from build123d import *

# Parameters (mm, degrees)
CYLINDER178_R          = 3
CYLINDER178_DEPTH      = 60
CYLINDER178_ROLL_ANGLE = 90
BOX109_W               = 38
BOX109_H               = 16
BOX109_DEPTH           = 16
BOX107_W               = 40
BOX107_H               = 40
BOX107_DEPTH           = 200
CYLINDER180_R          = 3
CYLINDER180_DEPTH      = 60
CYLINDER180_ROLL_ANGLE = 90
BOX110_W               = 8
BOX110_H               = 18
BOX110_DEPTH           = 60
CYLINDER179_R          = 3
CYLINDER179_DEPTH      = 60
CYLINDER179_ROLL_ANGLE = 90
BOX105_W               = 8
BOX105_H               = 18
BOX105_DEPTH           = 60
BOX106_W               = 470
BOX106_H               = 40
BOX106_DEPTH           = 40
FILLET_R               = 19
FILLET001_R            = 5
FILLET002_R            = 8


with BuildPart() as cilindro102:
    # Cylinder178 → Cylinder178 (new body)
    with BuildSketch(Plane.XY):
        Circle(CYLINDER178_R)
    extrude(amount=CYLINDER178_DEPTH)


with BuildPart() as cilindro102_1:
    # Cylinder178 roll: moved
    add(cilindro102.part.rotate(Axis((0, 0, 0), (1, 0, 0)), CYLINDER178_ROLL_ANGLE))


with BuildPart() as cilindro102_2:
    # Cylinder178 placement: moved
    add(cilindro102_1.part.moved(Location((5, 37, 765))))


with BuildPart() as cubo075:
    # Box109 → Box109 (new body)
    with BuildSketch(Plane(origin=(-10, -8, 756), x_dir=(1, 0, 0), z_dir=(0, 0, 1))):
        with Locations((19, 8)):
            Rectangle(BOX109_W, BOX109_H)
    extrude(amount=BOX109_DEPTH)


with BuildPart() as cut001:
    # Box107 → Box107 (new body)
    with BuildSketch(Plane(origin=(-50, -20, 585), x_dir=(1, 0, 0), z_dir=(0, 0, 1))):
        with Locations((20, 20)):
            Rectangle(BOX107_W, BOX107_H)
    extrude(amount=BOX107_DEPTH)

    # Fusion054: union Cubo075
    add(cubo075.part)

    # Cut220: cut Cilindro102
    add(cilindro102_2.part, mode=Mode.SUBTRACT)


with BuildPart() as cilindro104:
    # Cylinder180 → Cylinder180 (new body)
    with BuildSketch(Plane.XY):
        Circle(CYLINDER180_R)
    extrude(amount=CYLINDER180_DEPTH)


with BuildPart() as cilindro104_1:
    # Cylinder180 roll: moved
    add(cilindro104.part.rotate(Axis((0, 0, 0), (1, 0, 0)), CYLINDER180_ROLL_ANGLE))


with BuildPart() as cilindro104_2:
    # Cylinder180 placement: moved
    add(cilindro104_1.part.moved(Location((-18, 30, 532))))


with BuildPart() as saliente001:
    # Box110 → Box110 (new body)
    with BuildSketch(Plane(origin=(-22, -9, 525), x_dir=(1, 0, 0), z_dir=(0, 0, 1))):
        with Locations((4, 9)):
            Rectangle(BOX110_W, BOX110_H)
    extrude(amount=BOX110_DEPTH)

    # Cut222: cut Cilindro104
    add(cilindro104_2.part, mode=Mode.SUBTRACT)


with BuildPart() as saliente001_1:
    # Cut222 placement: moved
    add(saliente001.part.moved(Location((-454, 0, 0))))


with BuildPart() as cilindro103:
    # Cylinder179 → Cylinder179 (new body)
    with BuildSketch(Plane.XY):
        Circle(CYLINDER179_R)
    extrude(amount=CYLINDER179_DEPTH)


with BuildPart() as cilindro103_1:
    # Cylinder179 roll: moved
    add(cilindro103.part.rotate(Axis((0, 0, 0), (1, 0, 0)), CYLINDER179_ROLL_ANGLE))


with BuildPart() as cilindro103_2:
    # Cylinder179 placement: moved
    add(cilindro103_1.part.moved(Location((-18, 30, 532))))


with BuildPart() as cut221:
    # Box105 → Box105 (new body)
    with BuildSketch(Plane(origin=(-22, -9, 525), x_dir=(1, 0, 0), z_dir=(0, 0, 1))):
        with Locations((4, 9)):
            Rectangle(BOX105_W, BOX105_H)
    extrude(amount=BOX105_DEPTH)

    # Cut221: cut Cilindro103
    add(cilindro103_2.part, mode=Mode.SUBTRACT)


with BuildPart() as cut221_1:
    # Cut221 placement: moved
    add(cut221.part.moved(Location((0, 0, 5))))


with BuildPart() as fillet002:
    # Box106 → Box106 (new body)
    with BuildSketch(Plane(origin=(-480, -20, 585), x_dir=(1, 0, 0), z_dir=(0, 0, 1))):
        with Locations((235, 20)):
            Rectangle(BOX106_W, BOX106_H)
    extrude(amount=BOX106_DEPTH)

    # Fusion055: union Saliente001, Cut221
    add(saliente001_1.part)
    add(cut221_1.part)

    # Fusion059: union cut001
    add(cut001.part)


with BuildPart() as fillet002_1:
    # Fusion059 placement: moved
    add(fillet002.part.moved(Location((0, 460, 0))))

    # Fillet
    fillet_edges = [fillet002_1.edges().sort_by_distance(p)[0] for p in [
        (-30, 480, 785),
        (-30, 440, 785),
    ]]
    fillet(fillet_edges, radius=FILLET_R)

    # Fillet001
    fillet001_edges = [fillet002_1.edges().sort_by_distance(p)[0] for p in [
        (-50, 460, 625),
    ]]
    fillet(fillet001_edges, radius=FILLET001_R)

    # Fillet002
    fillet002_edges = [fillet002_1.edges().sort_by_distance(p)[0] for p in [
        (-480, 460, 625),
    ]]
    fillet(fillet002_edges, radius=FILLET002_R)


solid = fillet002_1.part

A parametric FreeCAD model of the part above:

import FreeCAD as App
import Part
import Sketcher
Q = App.Units.Quantity


def edges_at(feature, points):
    """Names of the edges that pass closest to the given points."""
    edges = feature.Shape.Edges
    near = lambda p: min(range(len(edges)), key=lambda i: edges[i].distToShape(Part.Vertex(*p))[0])
    return sorted({f"Edge{near(p) + 1}" for p in points})

doc = App.newDocument("Part")
body = doc.addObject("PartDesign::Body", "Body")

sketch1 = doc.addObject("Sketcher::SketchObject", "Sketch")
body.addObject(sketch1)
sketch1.AttachmentSupport = (doc.XY_Plane, [""])
sketch1.MapMode = "FlatFace"
sketch1.addGeometry(Part.Circle(App.Vector(0, 0, 0), App.Vector(0, 0, 1), 3), False)
sketch1.addConstraint([
    Sketcher.Constraint("Coincident", 0, 3, -1, 1),
    Sketcher.Constraint("Diameter", 0, Q("6 mm")),
])
pad1 = doc.addObject("PartDesign::Pad", "Pad")
body.addObject(pad1)
pad1.Profile = sketch1
pad1.Length = 60
body2 = doc.addObject("PartDesign::Body", "Body001")
doc.recompute()

body.Placement = App.Placement(App.Vector(0, 0, 0), App.Rotation(App.Vector(1, 0, 0), 90))
boolean = doc.addObject("PartDesign::Boolean", "Boolean")
body2.addObject(boolean)
boolean.Type = "Fuse"
boolean.addObjects([body])
body3 = doc.addObject("PartDesign::Body", "Body002")
doc.recompute()

body2.Placement = App.Placement(App.Vector(5, 37, 765), App.Rotation(App.Vector(0, 0, 1), 0))
boolean2 = doc.addObject("PartDesign::Boolean", "Boolean001")
body3.addObject(boolean2)
boolean2.Type = "Fuse"
boolean2.addObjects([body2])
body4 = doc.addObject("PartDesign::Body", "Body003")

sketch2 = doc.addObject("Sketcher::SketchObject", "Sketch001")
body4.addObject(sketch2)
sketch2.AttachmentSupport = (doc.getObject("XY_Plane003"), [""])
sketch2.MapMode = "FlatFace"
sketch2.AttachmentOffset = App.Placement(App.Vector(0, 0, 756), App.Rotation())
sketch2.addGeometry([
    Part.LineSegment(App.Vector(-10, 8, 0), App.Vector(-10, -8, 0)),
    Part.LineSegment(App.Vector(-10, -8, 0), App.Vector(28, -8, 0)),
    Part.LineSegment(App.Vector(28, -8, 0), App.Vector(28, 8, 0)),
    Part.LineSegment(App.Vector(28, 8, 0), App.Vector(-10, 8, 0)),
], False)
sketch2.addConstraint([
    Sketcher.Constraint("Coincident", 0, 2, 1, 1),
    Sketcher.Constraint("Coincident", 1, 2, 2, 1),
    Sketcher.Constraint("Coincident", 2, 2, 3, 1),
    Sketcher.Constraint("Coincident", 3, 2, 0, 1),
    Sketcher.Constraint("Vertical", 0),
    Sketcher.Constraint("Horizontal", 1),
    Sketcher.Constraint("Vertical", 2),
    Sketcher.Constraint("Horizontal", 3),
    Sketcher.Constraint("DistanceX", 1, 1, 1, 2, Q("38 mm")),
    Sketcher.Constraint("DistanceY", 0, 2, 0, 1, Q("16 mm")),
    Sketcher.Constraint("DistanceX", 0, 2, -1, 1, Q("10 mm")),
    Sketcher.Constraint("DistanceY", 0, 2, -1, 1, Q("8 mm")),
])
pad2 = doc.addObject("PartDesign::Pad", "Pad001")
body4.addObject(pad2)
pad2.Profile = sketch2
pad2.Length = 16
body5 = doc.addObject("PartDesign::Body", "Body004")

sketch3 = doc.addObject("Sketcher::SketchObject", "Sketch002")
body5.addObject(sketch3)
sketch3.AttachmentSupport = (doc.getObject("XY_Plane004"), [""])
sketch3.MapMode = "FlatFace"
sketch3.AttachmentOffset = App.Placement(App.Vector(0, 0, 585), App.Rotation())
sketch3.addGeometry([
    Part.LineSegment(App.Vector(-50, 20, 0), App.Vector(-50, -20, 0)),
    Part.LineSegment(App.Vector(-50, -20, 0), App.Vector(-10, -20, 0)),
    Part.LineSegment(App.Vector(-10, -20, 0), App.Vector(-10, 20, 0)),
    Part.LineSegment(App.Vector(-10, 20, 0), App.Vector(-50, 20, 0)),
], False)
sketch3.addConstraint([
    Sketcher.Constraint("Coincident", 0, 2, 1, 1),
    Sketcher.Constraint("Coincident", 1, 2, 2, 1),
    Sketcher.Constraint("Coincident", 2, 2, 3, 1),
    Sketcher.Constraint("Coincident", 3, 2, 0, 1),
    Sketcher.Constraint("Vertical", 0),
    Sketcher.Constraint("Horizontal", 1),
    Sketcher.Constraint("Vertical", 2),
    Sketcher.Constraint("Horizontal", 3),
    Sketcher.Constraint("Equal", 3, 0),
    Sketcher.Constraint("DistanceX", 1, 1, 1, 2, Q("40 mm")),
    Sketcher.Constraint("DistanceX", 0, 2, -1, 1, Q("50 mm")),
    Sketcher.Constraint("DistanceY", 0, 2, -1, 1, Q("20 mm")),
])
pad3 = doc.addObject("PartDesign::Pad", "Pad002")
body5.addObject(pad3)
pad3.Profile = sketch3
pad3.Length = 200
doc.recompute()

boolean3 = doc.addObject("PartDesign::Boolean", "Boolean002")
body5.addObject(boolean3)
boolean3.Type = "Fuse"
boolean3.addObjects([body4])
doc.recompute()

boolean4 = doc.addObject("PartDesign::Boolean", "Boolean003")
body5.addObject(boolean4)
boolean4.Type = "Cut"
boolean4.addObjects([body3])
body6 = doc.addObject("PartDesign::Body", "Body005")

sketch4 = doc.addObject("Sketcher::SketchObject", "Sketch003")
body6.addObject(sketch4)
sketch4.AttachmentSupport = (doc.getObject("XY_Plane005"), [""])
sketch4.MapMode = "FlatFace"
sketch4.addGeometry(Part.Circle(App.Vector(0, 0, 0), App.Vector(0, 0, 1), 3), False)
sketch4.addConstraint([
    Sketcher.Constraint("Coincident", 0, 3, -1, 1),
    Sketcher.Constraint("Diameter", 0, Q("6 mm")),
])
pad4 = doc.addObject("PartDesign::Pad", "Pad003")
body6.addObject(pad4)
pad4.Profile = sketch4
pad4.Length = 60
body7 = doc.addObject("PartDesign::Body", "Body006")
doc.recompute()

body6.Placement = App.Placement(App.Vector(0, 0, 0), App.Rotation(App.Vector(1, 0, 0), 90))
boolean5 = doc.addObject("PartDesign::Boolean", "Boolean004")
body7.addObject(boolean5)
boolean5.Type = "Fuse"
boolean5.addObjects([body6])
body8 = doc.addObject("PartDesign::Body", "Body007")
doc.recompute()

body7.Placement = App.Placement(App.Vector(-18, 30, 532), App.Rotation(App.Vector(0, 0, 1), 0))
boolean6 = doc.addObject("PartDesign::Boolean", "Boolean005")
body8.addObject(boolean6)
boolean6.Type = "Fuse"
boolean6.addObjects([body7])
body9 = doc.addObject("PartDesign::Body", "Body008")

sketch5 = doc.addObject("Sketcher::SketchObject", "Sketch004")
body9.addObject(sketch5)
sketch5.AttachmentSupport = (doc.getObject("XY_Plane008"), [""])
sketch5.MapMode = "FlatFace"
sketch5.AttachmentOffset = App.Placement(App.Vector(0, 0, 525), App.Rotation())
sketch5.addGeometry([
    Part.LineSegment(App.Vector(-22, 9, 0), App.Vector(-22, -9, 0)),
    Part.LineSegment(App.Vector(-22, -9, 0), App.Vector(-14, -9, 0)),
    Part.LineSegment(App.Vector(-14, -9, 0), App.Vector(-14, 9, 0)),
    Part.LineSegment(App.Vector(-14, 9, 0), App.Vector(-22, 9, 0)),
], False)
sketch5.addConstraint([
    Sketcher.Constraint("Coincident", 0, 2, 1, 1),
    Sketcher.Constraint("Coincident", 1, 2, 2, 1),
    Sketcher.Constraint("Coincident", 2, 2, 3, 1),
    Sketcher.Constraint("Coincident", 3, 2, 0, 1),
    Sketcher.Constraint("Vertical", 0),
    Sketcher.Constraint("Horizontal", 1),
    Sketcher.Constraint("Vertical", 2),
    Sketcher.Constraint("Horizontal", 3),
    Sketcher.Constraint("DistanceX", 1, 1, 1, 2, Q("8 mm")),
    Sketcher.Constraint("DistanceY", 0, 2, 0, 1, Q("18 mm")),
    Sketcher.Constraint("DistanceX", 0, 2, -1, 1, Q("22 mm")),
    Sketcher.Constraint("DistanceY", 0, 2, -1, 1, Q("9 mm")),
])
pad5 = doc.addObject("PartDesign::Pad", "Pad004")
body9.addObject(pad5)
pad5.Profile = sketch5
pad5.Length = 60
doc.recompute()

boolean7 = doc.addObject("PartDesign::Boolean", "Boolean006")
body9.addObject(boolean7)
boolean7.Type = "Cut"
boolean7.addObjects([body8])
body10 = doc.addObject("PartDesign::Body", "Body009")
doc.recompute()

body9.Placement = App.Placement(App.Vector(-454, 0, 0), App.Rotation(App.Vector(0, 0, 1), 0))
boolean8 = doc.addObject("PartDesign::Boolean", "Boolean007")
body10.addObject(boolean8)
boolean8.Type = "Fuse"
boolean8.addObjects([body9])
body11 = doc.addObject("PartDesign::Body", "Body010")

sketch6 = doc.addObject("Sketcher::SketchObject", "Sketch005")
body11.addObject(sketch6)
sketch6.AttachmentSupport = (doc.getObject("XY_Plane010"), [""])
sketch6.MapMode = "FlatFace"
sketch6.addGeometry(Part.Circle(App.Vector(0, 0, 0), App.Vector(0, 0, 1), 3), False)
sketch6.addConstraint([
    Sketcher.Constraint("Coincident", 0, 3, -1, 1),
    Sketcher.Constraint("Diameter", 0, Q("6 mm")),
])
pad6 = doc.addObject("PartDesign::Pad", "Pad005")
body11.addObject(pad6)
pad6.Profile = sketch6
pad6.Length = 60
body12 = doc.addObject("PartDesign::Body", "Body011")
doc.recompute()

body11.Placement = App.Placement(App.Vector(0, 0, 0), App.Rotation(App.Vector(1, 0, 0), 90))
boolean9 = doc.addObject("PartDesign::Boolean", "Boolean008")
body12.addObject(boolean9)
boolean9.Type = "Fuse"
boolean9.addObjects([body11])
body13 = doc.addObject("PartDesign::Body", "Body012")
doc.recompute()

body12.Placement = App.Placement(App.Vector(-18, 30, 532), App.Rotation(App.Vector(0, 0, 1), 0))
boolean10 = doc.addObject("PartDesign::Boolean", "Boolean009")
body13.addObject(boolean10)
boolean10.Type = "Fuse"
boolean10.addObjects([body12])
body14 = doc.addObject("PartDesign::Body", "Body013")

sketch7 = doc.addObject("Sketcher::SketchObject", "Sketch006")
body14.addObject(sketch7)
sketch7.AttachmentSupport = (doc.getObject("XY_Plane013"), [""])
sketch7.MapMode = "FlatFace"
sketch7.AttachmentOffset = App.Placement(App.Vector(0, 0, 525), App.Rotation())
sketch7.addGeometry([
    Part.LineSegment(App.Vector(-22, 9, 0), App.Vector(-22, -9, 0)),
    Part.LineSegment(App.Vector(-22, -9, 0), App.Vector(-14, -9, 0)),
    Part.LineSegment(App.Vector(-14, -9, 0), App.Vector(-14, 9, 0)),
    Part.LineSegment(App.Vector(-14, 9, 0), App.Vector(-22, 9, 0)),
], False)
sketch7.addConstraint([
    Sketcher.Constraint("Coincident", 0, 2, 1, 1),
    Sketcher.Constraint("Coincident", 1, 2, 2, 1),
    Sketcher.Constraint("Coincident", 2, 2, 3, 1),
    Sketcher.Constraint("Coincident", 3, 2, 0, 1),
    Sketcher.Constraint("Vertical", 0),
    Sketcher.Constraint("Horizontal", 1),
    Sketcher.Constraint("Vertical", 2),
    Sketcher.Constraint("Horizontal", 3),
    Sketcher.Constraint("DistanceX", 1, 1, 1, 2, Q("8 mm")),
    Sketcher.Constraint("DistanceY", 0, 2, 0, 1, Q("18 mm")),
    Sketcher.Constraint("DistanceX", 0, 2, -1, 1, Q("22 mm")),
    Sketcher.Constraint("DistanceY", 0, 2, -1, 1, Q("9 mm")),
])
pad7 = doc.addObject("PartDesign::Pad", "Pad006")
body14.addObject(pad7)
pad7.Profile = sketch7
pad7.Length = 60
doc.recompute()

boolean11 = doc.addObject("PartDesign::Boolean", "Boolean010")
body14.addObject(boolean11)
boolean11.Type = "Cut"
boolean11.addObjects([body13])
body15 = doc.addObject("PartDesign::Body", "Body014")
doc.recompute()

body14.Placement = App.Placement(App.Vector(0, 0, 5), App.Rotation(App.Vector(0, 0, 1), 0))
boolean12 = doc.addObject("PartDesign::Boolean", "Boolean011")
body15.addObject(boolean12)
boolean12.Type = "Fuse"
boolean12.addObjects([body14])
body16 = doc.addObject("PartDesign::Body", "Body015")

sketch8 = doc.addObject("Sketcher::SketchObject", "Sketch007")
body16.addObject(sketch8)
sketch8.AttachmentSupport = (doc.getObject("XY_Plane015"), [""])
sketch8.MapMode = "FlatFace"
sketch8.AttachmentOffset = App.Placement(App.Vector(0, 0, 585), App.Rotation())
sketch8.addGeometry([
    Part.LineSegment(App.Vector(-480, 20, 0), App.Vector(-480, -20, 0)),
    Part.LineSegment(App.Vector(-480, -20, 0), App.Vector(-10, -20, 0)),
    Part.LineSegment(App.Vector(-10, -20, 0), App.Vector(-10, 20, 0)),
    Part.LineSegment(App.Vector(-10, 20, 0), App.Vector(-480, 20, 0)),
], False)
sketch8.addConstraint([
    Sketcher.Constraint("Coincident", 0, 2, 1, 1),
    Sketcher.Constraint("Coincident", 1, 2, 2, 1),
    Sketcher.Constraint("Coincident", 2, 2, 3, 1),
    Sketcher.Constraint("Coincident", 3, 2, 0, 1),
    Sketcher.Constraint("Vertical", 0),
    Sketcher.Constraint("Horizontal", 1),
    Sketcher.Constraint("Vertical", 2),
    Sketcher.Constraint("Horizontal", 3),
    Sketcher.Constraint("DistanceX", 1, 1, 1, 2, Q("470 mm")),
    Sketcher.Constraint("DistanceY", 0, 2, 0, 1, Q("40 mm")),
    Sketcher.Constraint("DistanceX", 0, 2, -1, 1, Q("480 mm")),
    Sketcher.Constraint("DistanceY", 0, 2, -1, 1, Q("20 mm")),
])
pad8 = doc.addObject("PartDesign::Pad", "Pad007")
body16.addObject(pad8)
pad8.Profile = sketch8
pad8.Length = 40
doc.recompute()

boolean13 = doc.addObject("PartDesign::Boolean", "Boolean012")
body16.addObject(boolean13)
boolean13.Type = "Fuse"
boolean13.addObjects([body10])
doc.recompute()

boolean14 = doc.addObject("PartDesign::Boolean", "Boolean013")
body16.addObject(boolean14)
boolean14.Type = "Fuse"
boolean14.addObjects([body15])
doc.recompute()

boolean15 = doc.addObject("PartDesign::Boolean", "Boolean014")
body16.addObject(boolean15)
boolean15.Type = "Fuse"
boolean15.addObjects([body5])
body17 = doc.addObject("PartDesign::Body", "Body016")
doc.recompute()

body16.Placement = App.Placement(App.Vector(0, 460, 0), App.Rotation(App.Vector(0, 0, 1), 0))
boolean16 = doc.addObject("PartDesign::Boolean", "Boolean015")
body17.addObject(boolean16)
boolean16.Type = "Fuse"
boolean16.addObjects([body16])
doc.recompute()

fillet = doc.addObject("PartDesign::Fillet", "Fillet")
body17.addObject(fillet)
fillet.Base = (boolean16, edges_at(boolean16, [(-30, 480, 785), (-30, 440, 785)]))
fillet.Radius = 19
doc.recompute()

fillet2 = doc.addObject("PartDesign::Fillet", "Fillet001")
body17.addObject(fillet2)
fillet2.Base = (fillet, edges_at(fillet, [(-50, 460, 625)]))
fillet2.Radius = 5
doc.recompute()

fillet3 = doc.addObject("PartDesign::Fillet", "Fillet002")
body17.addObject(fillet3)
fillet3.Base = (fillet2, edges_at(fillet2, [(-480, 460, 625)]))
fillet3.Radius = 8

doc.recompute()
